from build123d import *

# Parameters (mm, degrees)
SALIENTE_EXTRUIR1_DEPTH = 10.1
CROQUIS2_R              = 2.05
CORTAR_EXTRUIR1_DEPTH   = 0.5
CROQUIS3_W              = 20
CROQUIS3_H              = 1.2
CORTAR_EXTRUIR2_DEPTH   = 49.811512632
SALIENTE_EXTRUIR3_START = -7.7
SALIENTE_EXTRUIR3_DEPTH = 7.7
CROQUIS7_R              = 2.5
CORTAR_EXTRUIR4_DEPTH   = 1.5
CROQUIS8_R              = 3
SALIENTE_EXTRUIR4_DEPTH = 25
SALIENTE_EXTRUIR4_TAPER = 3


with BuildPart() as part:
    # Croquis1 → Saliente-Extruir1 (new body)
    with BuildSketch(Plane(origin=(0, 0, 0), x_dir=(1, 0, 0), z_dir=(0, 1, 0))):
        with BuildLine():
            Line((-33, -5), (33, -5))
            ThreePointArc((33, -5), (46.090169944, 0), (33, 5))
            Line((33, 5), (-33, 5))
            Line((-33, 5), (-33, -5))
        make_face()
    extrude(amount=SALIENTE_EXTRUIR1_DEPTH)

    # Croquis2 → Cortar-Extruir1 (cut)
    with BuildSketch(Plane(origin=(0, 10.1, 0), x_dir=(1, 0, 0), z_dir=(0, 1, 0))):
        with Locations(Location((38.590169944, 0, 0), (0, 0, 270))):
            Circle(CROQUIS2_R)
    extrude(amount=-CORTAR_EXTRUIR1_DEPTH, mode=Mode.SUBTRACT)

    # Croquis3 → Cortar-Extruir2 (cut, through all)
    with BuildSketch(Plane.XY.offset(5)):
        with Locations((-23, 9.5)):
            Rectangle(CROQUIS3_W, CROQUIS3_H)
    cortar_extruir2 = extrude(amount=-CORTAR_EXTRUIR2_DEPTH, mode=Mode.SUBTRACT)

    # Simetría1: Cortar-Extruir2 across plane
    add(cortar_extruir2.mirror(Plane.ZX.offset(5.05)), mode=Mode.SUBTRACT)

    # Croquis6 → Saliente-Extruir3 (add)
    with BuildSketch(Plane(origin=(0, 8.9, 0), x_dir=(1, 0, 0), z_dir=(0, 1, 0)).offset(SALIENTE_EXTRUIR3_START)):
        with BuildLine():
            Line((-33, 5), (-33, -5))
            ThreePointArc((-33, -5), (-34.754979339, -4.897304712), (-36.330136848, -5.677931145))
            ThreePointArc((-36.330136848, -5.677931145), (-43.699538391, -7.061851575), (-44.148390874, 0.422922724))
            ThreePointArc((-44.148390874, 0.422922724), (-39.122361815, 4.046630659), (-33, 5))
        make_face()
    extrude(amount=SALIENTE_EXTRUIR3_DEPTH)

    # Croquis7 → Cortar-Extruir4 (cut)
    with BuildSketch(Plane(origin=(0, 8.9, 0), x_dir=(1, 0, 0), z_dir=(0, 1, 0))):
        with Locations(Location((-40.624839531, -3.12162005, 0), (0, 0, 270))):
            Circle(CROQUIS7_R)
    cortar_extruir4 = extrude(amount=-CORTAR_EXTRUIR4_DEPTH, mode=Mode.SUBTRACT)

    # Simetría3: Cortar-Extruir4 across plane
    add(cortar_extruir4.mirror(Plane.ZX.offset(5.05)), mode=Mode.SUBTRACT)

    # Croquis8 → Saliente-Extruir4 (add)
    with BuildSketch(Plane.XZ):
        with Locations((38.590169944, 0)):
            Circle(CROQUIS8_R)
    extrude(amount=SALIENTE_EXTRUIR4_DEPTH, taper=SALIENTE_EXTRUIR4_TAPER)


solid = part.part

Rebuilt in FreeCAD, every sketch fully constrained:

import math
import FreeCAD as App
import Part
import Sketcher
Q = App.Units.Quantity

doc = App.newDocument("Part")
body = doc.addObject("PartDesign::Body", "Body")

# Sketch on XZ plane
sketch1 = body.newObject("Sketcher::SketchObject", "Sketch")
sketch1.AttachmentSupport = (doc.getObject("XZ_Plane"), [""])
sketch1.MapMode = "FlatFace"
sketch1.addGeometry(Part.LineSegment(App.Vector(-33, 5, 0), App.Vector(33, 5, 0)), False)
sketch1.addGeometry(Part.ArcOfCircle(Part.Circle(App.Vector(38.59017, 0, 0), App.Vector(0, 0, 1), 7.5), math.radians(-138.189685), math.radians(138.189685)), False)
sketch1.addGeometry(Part.LineSegment(App.Vector(33, -5, 0), App.Vector(-33, -5, 0)), False)
sketch1.addGeometry(Part.LineSegment(App.Vector(-33, -5, 0), App.Vector(-33, 5, 0)), False)
sketch1.addConstraint(Sketcher.Constraint("Coincident", 0, 2, 1, 2))
sketch1.addConstraint(Sketcher.Constraint("Coincident", 1, 1, 2, 1))
sketch1.addConstraint(Sketcher.Constraint("Coincident", 2, 2, 3, 1))
sketch1.addConstraint(Sketcher.Constraint("Coincident", 3, 2, 0, 1))
sketch1.addConstraint(Sketcher.Constraint("Horizontal", 0))
sketch1.addConstraint(Sketcher.Constraint("Horizontal", 2))
sketch1.addConstraint(Sketcher.Constraint("Vertical", 3))
sketch1.addConstraint(Sketcher.Constraint("Symmetric", 0, 2, 2, 2, -1, 1))
sketch1.addConstraint(Sketcher.Constraint("PointOnObject", 1, 3, -1))
sketch1.addConstraint(Sketcher.Constraint("Radius", 1, Q("7.5 mm")))
sketch1.addConstraint(Sketcher.Constraint("DistanceX", 0, 1, 0, 2, Q("66 mm")))
sketch1.addConstraint(Sketcher.Constraint("DistanceY", 3, 1, 3, 2, Q("10 mm")))
pad1 = body.newObject("PartDesign::Pad", "Pad")
pad1.Profile = sketch1
pad1.Length = 10.1
pad1.Reversed = True

# Sketch on XZ plane
sketch2 = body.newObject("Sketcher::SketchObject", "Sketch001")
sketch2.AttachmentSupport = (doc.getObject("XZ_Plane"), [""])
sketch2.MapMode = "FlatFace"
sketch2.AttachmentOffset = App.Placement(App.Vector(0, 0, -10.1), App.Rotation())
sketch2.addGeometry(Part.Circle(App.Vector(38.59017, 0, 0), App.Vector(0, 0, 1), 2.05), False)
sketch2.addConstraint(Sketcher.Constraint("PointOnObject", 0, 3, -1))
sketch2.addConstraint(Sketcher.Constraint("Diameter", 0, Q("4.1 mm")))
sketch2.addConstraint(Sketcher.Constraint("DistanceX", -1, 1, 0, 3, Q("38.59017 mm")))
pocket1 = body.newObject("PartDesign::Pocket", "Pocket")
pocket1.Profile = sketch2
pocket1.Length = 0.5
pocket1.Reversed = True

# Sketch on XY plane
sketch3 = body.newObject("Sketcher::SketchObject", "Sketch002")
sketch3.AttachmentSupport = (doc.getObject("XY_Plane"), [""])
sketch3.MapMode = "FlatFace"
sketch3.AttachmentOffset = App.Placement(App.Vector(0, 0, 5), App.Rotation())
sketch3.addGeometry(Part.LineSegment(App.Vector(-33, 10.1, 0), App.Vector(-33, 8.9, 0)), False)
sketch3.addGeometry(Part.LineSegment(App.Vector(-33, 8.9, 0), App.Vector(-13, 8.9, 0)), False)
sketch3.addGeometry(Part.LineSegment(App.Vector(-13, 8.9, 0), App.Vector(-13, 10.1, 0)), False)
sketch3.addGeometry(Part.LineSegment(App.Vector(-13, 10.1, 0), App.Vector(-33, 10.1, 0)), False)
sketch3.addConstraint(Sketcher.Constraint("Coincident", 0, 2, 1, 1))
sketch3.addConstraint(Sketcher.Constraint("Coincident", 1, 2, 2, 1))
sketch3.addConstraint(Sketcher.Constraint("Coincident", 2, 2, 3, 1))
sketch3.addConstraint(Sketcher.Constraint("Coincident", 3, 2, 0, 1))
sketch3.addConstraint(Sketcher.Constraint("Vertical", 0))
sketch3.addConstraint(Sketcher.Constraint("Horizontal", 1))
sketch3.addConstraint(Sketcher.Constraint("Vertical", 2))
sketch3.addConstraint(Sketcher.Constraint("Horizontal", 3))
sketch3.addConstraint(Sketcher.Constraint("DistanceX", 1, 1, 1, 2, Q("20 mm")))
sketch3.addConstraint(Sketcher.Constraint("DistanceY", 0, 2, 0, 1, Q("1.2 mm")))
sketch3.addConstraint(Sketcher.Constraint("DistanceX", 0, 2, -1, 1, Q("33 mm")))
sketch3.addConstraint(Sketcher.Constraint("DistanceY", -1, 1, 0, 2, Q("8.9 mm")))
pocket2 = body.newObject("PartDesign::Pocket", "Pocket001")
pocket2.Profile = sketch3
pocket2.Type = "ThroughAll"
doc.recompute()

datumplane = body.newObject("PartDesign::Plane", "DatumPlane")
datumplane.AttachmentSupport = (doc.getObject("XZ_Plane"), [""])
datumplane.MapMode = "FlatFace"
datumplane.AttachmentOffset = App.Placement(App.Vector(0, 0, -5.05), App.Rotation())
mirrored = body.newObject("PartDesign::Mirrored", "Mirrored")
mirrored.Originals = [pocket2]
mirrored.MirrorPlane = (datumplane, [""])
body.Tip = mirrored

# Sketch on XZ plane
sketch4 = body.newObject("Sketcher::SketchObject", "Sketch003")
sketch4.AttachmentSupport = (doc.getObject("XZ_Plane"), [""])
sketch4.MapMode = "FlatFace"
sketch4.AttachmentOffset = App.Placement(App.Vector(0, 0, -1.2), App.Rotation())
sketch4.addGeometry(Part.LineSegment(App.Vector(-33, 5, 0), App.Vector(-33, -5, 0)), False)
sketch4.addGeometry(Part.ArcOfCircle(Part.Circle(App.Vector(-34.071071, 8.256802, 0), App.Vector(0, 0, 1), 13.3), math.radians(-139.261257), math.radians(-85.380874)), False)
sketch4.addGeometry(Part.ArcOfCircle(Part.Circle(App.Vector(-40.62484, 3.12162, 0), App.Vector(0, 0, 1), 4.997919), math.radians(30.762133), math.radians(225.170161)), False)
sketch4.addGeometry(Part.ArcOfCircle(Part.Circle(App.Vector(-34.071071, 8.256802, 0), App.Vector(0, 0, 1), 3.428404), math.radians(-131.218041), math.radians(-71.795412)), False)
sketch4.addConstraint(Sketcher.Constraint("Coincident", 0, 2, 1, 2))
sketch4.addConstraint(Sketcher.Constraint("Coincident", 1, 1, 2, 2))
sketch4.addConstraint(Sketcher.Constraint("Coincident", 2, 1, 3, 1))
sketch4.addConstraint(Sketcher.Constraint("Coincident", 3, 2, 0, 1))
sketch4.addConstraint(Sketcher.Constraint("Vertical", 0))
sketch4.addConstraint(Sketcher.Constraint("Coincident", 3, 3, 1, 3))
sketch4.addConstraint(Sketcher.Constraint("Radius", 1, Q("13.3 mm")))
sketch4.addConstraint(Sketcher.Constraint("DistanceY", 0, 2, 0, 1, Q("10 mm")))
sketch4.addConstraint(Sketcher.Constraint("DistanceX", 0, 2, -1, 1, Q("33 mm")))
sketch4.addConstraint(Sketcher.Constraint("DistanceY", 0, 2, -1, 1, Q("5 mm")))
sketch4.addConstraint(Sketcher.Constraint("Radius", 2, Q("4.997919 mm")))
sketch4.addConstraint(Sketcher.Constraint("Radius", 3, Q("3.428404 mm")))
sketch4.addConstraint(Sketcher.Constraint("DistanceX", 2, 3, -1, 1, Q("40.62484 mm")))
sketch4.addConstraint(Sketcher.Constraint("DistanceY", -1, 1, 2, 3, Q("3.12162 mm")))
pad2 = body.newObject("PartDesign::Pad", "Pad001")
pad2.Profile = sketch4
pad2.Length = 7.7
pad2.Reversed = True

# Sketch on XZ plane
sketch5 = body.newObject("Sketcher::SketchObject", "Sketch004")
sketch5.AttachmentSupport = (doc.getObject("XZ_Plane"), [""])
sketch5.MapMode = "FlatFace"
sketch5.AttachmentOffset = App.Placement(App.Vector(0, 0, -8.9), App.Rotation())
sketch5.addGeometry(Part.Circle(App.Vector(-40.62484, 3.12162, 0), App.Vector(0, 0, 1), 2.5), False)
sketch5.addConstraint(Sketcher.Constraint("Diameter", 0, Q("5 mm")))
sketch5.addConstraint(Sketcher.Constraint("DistanceX", 0, 3, -1, 1, Q("40.62484 mm")))
sketch5.addConstraint(Sketcher.Constraint("DistanceY", -1, 1, 0, 3, Q("3.12162 mm")))
pocket3 = body.newObject("PartDesign::Pocket", "Pocket002")
pocket3.Profile = sketch5
pocket3.Length = 1.5
pocket3.Reversed = True
doc.recompute()

datumplane2 = body.newObject("PartDesign::Plane", "DatumPlane001")
datumplane2.AttachmentSupport = (doc.getObject("XZ_Plane"), [""])
datumplane2.MapMode = "FlatFace"
datumplane2.AttachmentOffset = App.Placement(App.Vector(0, 0, -5.05), App.Rotation())
mirrored2 = body.newObject("PartDesign::Mirrored", "Mirrored001")
mirrored2.Originals = [pocket3]
mirrored2.MirrorPlane = (datumplane2, [""])
body.Tip = mirrored2

# Sketch on XZ plane
sketch6 = body.newObject("Sketcher::SketchObject", "Sketch005")
sketch6.AttachmentSupport = (doc.getObject("XZ_Plane"), [""])
sketch6.MapMode = "FlatFace"
sketch6.addGeometry(Part.Circle(App.Vector(38.59017, 0, 0), App.Vector(0, 0, 1), 3), False)
sketch6.addConstraint(Sketcher.Constraint("PointOnObject", 0, 3, -1))
sketch6.addConstraint(Sketcher.Constraint("Diameter", 0, Q("6 mm")))
sketch6.addConstraint(Sketcher.Constraint("DistanceX", -1, 1, 0, 3, Q("38.59017 mm")))
pad3 = body.newObject("PartDesign::Pad", "Pad002")
pad3.Profile = sketch6
pad3.Length = 25
pad3.TaperAngle = -3

doc.recompute()
